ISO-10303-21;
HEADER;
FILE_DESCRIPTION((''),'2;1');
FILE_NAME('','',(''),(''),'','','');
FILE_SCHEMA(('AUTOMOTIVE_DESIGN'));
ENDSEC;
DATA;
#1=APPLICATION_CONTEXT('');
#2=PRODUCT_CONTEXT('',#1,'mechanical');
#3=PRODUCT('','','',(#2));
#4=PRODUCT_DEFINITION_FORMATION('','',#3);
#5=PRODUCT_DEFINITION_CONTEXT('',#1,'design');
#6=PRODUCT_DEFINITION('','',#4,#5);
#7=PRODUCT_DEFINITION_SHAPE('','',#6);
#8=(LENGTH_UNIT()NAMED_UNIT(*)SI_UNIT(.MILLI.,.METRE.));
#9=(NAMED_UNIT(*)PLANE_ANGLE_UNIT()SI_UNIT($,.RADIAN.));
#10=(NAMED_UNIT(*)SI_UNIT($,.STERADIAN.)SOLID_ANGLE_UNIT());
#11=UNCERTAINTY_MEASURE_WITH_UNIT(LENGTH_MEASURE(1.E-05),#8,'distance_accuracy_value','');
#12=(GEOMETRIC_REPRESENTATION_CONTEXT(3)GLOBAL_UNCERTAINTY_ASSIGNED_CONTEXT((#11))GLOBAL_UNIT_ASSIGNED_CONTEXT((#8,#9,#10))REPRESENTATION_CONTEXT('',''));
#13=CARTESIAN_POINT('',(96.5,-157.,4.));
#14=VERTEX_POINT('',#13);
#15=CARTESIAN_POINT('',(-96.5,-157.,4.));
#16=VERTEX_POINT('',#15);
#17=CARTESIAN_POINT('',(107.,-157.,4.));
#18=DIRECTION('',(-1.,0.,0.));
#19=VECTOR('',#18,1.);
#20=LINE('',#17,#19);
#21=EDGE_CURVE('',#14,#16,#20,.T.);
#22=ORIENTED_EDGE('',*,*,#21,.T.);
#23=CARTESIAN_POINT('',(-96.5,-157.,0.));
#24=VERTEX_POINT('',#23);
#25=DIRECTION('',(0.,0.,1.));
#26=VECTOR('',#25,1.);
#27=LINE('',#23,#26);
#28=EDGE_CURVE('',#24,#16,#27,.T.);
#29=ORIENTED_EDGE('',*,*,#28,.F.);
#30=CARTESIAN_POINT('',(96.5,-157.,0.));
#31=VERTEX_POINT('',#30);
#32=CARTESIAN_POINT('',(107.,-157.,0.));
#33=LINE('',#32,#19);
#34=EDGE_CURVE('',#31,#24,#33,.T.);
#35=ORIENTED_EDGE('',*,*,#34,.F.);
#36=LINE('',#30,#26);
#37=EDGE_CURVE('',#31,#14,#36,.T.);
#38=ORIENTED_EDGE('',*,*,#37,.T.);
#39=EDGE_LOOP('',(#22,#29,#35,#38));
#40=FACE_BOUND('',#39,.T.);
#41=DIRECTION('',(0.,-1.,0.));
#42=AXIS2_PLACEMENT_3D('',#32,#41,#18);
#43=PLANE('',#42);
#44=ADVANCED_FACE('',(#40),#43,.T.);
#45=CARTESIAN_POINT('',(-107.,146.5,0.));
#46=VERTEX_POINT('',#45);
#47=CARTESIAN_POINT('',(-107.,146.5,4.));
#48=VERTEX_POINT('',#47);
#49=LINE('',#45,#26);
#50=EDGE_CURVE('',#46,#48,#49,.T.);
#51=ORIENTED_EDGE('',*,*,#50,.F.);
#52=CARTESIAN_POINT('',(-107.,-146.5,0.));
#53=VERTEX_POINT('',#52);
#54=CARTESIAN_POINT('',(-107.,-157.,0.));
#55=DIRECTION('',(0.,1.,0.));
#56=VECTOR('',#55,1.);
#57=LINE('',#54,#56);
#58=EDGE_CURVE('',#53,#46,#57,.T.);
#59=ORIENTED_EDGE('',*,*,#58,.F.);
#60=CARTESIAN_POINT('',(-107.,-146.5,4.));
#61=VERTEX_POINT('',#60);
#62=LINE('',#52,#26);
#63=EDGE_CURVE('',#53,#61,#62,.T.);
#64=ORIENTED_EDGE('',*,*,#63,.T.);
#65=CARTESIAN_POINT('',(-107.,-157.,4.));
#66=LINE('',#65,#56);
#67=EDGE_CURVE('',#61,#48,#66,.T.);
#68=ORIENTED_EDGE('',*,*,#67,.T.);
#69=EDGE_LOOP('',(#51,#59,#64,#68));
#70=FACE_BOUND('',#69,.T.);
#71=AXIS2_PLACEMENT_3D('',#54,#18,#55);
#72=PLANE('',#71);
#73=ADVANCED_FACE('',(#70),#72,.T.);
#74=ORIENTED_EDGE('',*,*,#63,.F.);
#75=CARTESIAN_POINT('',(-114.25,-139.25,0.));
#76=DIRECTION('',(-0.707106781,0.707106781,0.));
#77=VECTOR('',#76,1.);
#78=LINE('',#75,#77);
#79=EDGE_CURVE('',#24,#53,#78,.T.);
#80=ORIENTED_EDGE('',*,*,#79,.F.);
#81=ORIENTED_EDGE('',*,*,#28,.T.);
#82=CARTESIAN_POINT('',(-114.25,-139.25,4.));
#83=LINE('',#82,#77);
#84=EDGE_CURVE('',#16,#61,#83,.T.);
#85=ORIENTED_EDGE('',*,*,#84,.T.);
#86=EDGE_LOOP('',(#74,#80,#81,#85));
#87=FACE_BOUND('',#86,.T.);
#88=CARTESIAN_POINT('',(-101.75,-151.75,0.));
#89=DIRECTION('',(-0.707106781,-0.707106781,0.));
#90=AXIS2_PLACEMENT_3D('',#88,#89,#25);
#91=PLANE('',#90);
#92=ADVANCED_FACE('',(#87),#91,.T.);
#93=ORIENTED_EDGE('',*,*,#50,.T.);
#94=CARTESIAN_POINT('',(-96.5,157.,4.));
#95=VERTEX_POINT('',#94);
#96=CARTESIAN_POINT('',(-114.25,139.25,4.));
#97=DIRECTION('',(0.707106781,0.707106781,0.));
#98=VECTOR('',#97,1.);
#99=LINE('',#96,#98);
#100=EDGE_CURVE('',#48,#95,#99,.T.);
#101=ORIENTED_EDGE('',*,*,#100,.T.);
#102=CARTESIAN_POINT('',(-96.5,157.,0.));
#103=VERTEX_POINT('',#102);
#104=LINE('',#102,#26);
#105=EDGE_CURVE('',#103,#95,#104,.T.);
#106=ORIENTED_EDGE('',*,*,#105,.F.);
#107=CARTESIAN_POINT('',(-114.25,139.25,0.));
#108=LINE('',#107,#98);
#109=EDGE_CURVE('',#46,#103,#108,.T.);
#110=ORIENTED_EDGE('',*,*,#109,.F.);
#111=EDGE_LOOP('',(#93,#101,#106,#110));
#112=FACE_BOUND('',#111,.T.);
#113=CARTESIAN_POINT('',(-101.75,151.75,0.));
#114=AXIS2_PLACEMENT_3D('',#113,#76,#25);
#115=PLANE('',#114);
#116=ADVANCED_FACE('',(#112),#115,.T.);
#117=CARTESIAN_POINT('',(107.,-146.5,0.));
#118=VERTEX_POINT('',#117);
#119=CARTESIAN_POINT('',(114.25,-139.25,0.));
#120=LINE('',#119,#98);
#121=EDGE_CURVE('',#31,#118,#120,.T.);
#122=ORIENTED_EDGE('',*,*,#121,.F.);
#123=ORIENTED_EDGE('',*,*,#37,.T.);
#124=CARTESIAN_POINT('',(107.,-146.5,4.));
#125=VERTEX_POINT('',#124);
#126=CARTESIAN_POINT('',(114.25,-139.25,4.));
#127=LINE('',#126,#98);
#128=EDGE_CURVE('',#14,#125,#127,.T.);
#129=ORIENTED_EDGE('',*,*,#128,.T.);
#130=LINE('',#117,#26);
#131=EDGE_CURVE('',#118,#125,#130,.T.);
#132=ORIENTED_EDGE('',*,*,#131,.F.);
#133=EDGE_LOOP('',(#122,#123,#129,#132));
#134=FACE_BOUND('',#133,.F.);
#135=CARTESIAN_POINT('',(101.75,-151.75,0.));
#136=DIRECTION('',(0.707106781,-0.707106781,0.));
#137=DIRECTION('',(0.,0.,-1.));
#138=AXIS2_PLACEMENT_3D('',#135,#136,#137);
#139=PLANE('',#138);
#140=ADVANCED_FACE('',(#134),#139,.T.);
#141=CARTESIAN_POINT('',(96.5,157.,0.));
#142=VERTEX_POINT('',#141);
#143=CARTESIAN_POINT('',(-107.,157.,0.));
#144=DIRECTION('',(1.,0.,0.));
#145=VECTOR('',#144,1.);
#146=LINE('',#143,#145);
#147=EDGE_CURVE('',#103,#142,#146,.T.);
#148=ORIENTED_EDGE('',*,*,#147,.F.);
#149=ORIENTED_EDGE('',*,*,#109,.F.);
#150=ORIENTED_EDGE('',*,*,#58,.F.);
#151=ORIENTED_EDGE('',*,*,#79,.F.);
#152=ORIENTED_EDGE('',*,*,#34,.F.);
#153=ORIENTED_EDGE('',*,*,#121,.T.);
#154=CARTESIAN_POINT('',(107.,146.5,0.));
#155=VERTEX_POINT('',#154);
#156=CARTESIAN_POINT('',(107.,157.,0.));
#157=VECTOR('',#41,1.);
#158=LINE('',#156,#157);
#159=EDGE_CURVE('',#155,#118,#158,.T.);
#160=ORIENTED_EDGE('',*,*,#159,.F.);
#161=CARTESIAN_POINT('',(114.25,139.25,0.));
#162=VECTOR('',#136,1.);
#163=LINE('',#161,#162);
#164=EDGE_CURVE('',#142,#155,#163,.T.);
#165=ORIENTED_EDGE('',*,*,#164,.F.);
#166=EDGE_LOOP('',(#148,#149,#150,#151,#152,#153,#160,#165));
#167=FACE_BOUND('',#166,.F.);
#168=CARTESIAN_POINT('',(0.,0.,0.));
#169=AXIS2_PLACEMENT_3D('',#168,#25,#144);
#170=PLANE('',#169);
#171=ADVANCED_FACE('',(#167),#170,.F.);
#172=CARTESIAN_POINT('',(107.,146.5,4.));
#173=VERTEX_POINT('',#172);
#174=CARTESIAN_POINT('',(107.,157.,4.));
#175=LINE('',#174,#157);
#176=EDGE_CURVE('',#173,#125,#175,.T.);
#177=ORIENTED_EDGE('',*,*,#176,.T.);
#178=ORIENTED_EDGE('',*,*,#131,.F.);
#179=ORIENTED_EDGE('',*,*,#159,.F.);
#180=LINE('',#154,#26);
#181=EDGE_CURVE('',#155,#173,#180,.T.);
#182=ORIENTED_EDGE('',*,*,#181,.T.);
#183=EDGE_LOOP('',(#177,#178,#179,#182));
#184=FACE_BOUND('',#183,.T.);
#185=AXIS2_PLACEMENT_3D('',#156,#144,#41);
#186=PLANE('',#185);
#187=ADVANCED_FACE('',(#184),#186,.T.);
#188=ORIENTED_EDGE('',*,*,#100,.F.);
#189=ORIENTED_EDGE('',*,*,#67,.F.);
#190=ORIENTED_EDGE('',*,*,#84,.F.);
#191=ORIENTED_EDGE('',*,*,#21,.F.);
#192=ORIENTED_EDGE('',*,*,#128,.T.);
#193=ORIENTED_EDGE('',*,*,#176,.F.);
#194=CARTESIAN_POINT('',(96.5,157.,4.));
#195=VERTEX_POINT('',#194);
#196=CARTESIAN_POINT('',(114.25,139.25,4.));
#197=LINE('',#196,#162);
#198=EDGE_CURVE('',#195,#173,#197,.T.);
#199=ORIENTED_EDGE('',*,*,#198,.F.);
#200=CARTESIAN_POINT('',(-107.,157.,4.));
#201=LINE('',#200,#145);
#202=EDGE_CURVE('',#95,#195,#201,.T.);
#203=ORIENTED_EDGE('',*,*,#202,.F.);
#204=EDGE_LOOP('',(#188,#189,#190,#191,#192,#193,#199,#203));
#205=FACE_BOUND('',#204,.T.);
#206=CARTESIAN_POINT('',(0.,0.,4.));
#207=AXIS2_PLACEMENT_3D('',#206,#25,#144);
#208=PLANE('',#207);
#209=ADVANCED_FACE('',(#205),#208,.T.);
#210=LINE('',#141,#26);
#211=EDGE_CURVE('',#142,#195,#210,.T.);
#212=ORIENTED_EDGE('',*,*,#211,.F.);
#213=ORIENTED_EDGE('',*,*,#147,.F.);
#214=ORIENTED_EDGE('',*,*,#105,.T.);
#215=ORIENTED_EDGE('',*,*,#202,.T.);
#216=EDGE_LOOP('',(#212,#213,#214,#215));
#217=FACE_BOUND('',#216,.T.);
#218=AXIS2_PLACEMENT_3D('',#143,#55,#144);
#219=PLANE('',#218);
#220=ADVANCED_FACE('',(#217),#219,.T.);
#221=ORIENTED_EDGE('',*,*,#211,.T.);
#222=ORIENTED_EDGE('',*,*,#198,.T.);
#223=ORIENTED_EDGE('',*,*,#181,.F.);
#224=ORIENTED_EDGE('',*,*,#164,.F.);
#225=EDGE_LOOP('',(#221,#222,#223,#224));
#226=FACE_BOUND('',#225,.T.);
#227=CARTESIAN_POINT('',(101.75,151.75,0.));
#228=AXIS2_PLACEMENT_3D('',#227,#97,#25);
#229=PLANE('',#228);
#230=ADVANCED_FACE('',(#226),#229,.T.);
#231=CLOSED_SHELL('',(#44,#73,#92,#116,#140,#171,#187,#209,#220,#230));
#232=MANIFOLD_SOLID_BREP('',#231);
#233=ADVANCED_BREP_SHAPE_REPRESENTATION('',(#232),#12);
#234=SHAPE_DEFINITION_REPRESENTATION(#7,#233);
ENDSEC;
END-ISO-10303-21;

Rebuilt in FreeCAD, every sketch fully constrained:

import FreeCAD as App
import Part
import Sketcher
from FreeCAD import Vector
Q = App.Units.Quantity


def edges_at(feature, points):
    """Names of the edges that pass closest to the given points."""
    edges = feature.Shape.Edges
    near = lambda p: min(range(len(edges)), key=lambda i: edges[i].distToShape(Part.Vertex(*p))[0])
    return sorted({f"Edge{near(p) + 1}" for p in points})


def add_polygon(sketch, points):
    """Adds a closed chain of lines whose ends are joined by coincident constraints."""
    first, n = sketch.GeometryCount, len(points)
    for a, b in zip(points, points[1:] + points[:1]):
        sketch.addGeometry(Part.LineSegment(App.Vector(*a, 0), App.Vector(*b, 0)), False)
    for i in range(n):
        sketch.addConstraint(Sketcher.Constraint("Coincident", first + i, 2, first + (i + 1) % n, 1))

doc = App.newDocument("Part")
body = doc.addObject("PartDesign::Body", "Body")

sketch1 = body.newObject("Sketcher::SketchObject", "Sketch")
sketch1.AttachmentSupport = (doc.getObject("XY_Plane"), [""])
sketch1.MapMode = "FlatFace"
add_polygon(sketch1, [(-107, -157), (107, -157), (107, 157), (-107, 157)])
sketch1.addConstraint([
    Sketcher.Constraint("Horizontal", 0),
    Sketcher.Constraint("Vertical", 1),
    Sketcher.Constraint("Horizontal", 2),
    Sketcher.Constraint("Vertical", 3),
    Sketcher.Constraint("Symmetric", 0, 2, 2, 2, -1, 1),
    Sketcher.Constraint("DistanceX", 0, 1, 0, 2, Q("214 mm")),
    Sketcher.Constraint("DistanceY", 1, 1, 1, 2, Q("314 mm")),
])
pad1 = body.newObject("PartDesign::Pad", "Pad")
pad1.Profile = sketch1
pad1.Length = 4
doc.recompute()

chamfer = body.newObject("PartDesign::Chamfer", "Chamfer")
chamfer.Base = (pad1, edges_at(pad1, [
    (-107, 157, 2),
    (-107, -157, 2),
    (107, -157, 2),
    (107, 157, 2),
]))
chamfer.Size = 10.5

doc.recompute()
